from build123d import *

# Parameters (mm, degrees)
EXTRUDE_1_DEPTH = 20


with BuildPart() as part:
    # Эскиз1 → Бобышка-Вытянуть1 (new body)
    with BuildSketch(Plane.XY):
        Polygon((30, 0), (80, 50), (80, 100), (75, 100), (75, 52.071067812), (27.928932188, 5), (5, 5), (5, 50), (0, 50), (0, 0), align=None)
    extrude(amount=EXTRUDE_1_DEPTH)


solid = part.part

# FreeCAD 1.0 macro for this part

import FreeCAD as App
import Part
import Sketcher
Q = App.Units.Quantity

doc = App.newDocument("Part")
body = doc.addObject("PartDesign::Body", "Body")

sketch1 = body.newObject("Sketcher::SketchObject", "Sketch")
sketch1.AttachmentSupport = (doc.getObject("XY_Plane"), [""])
sketch1.MapMode = "FlatFace"
sketch1.addGeometry(Part.LineSegment(App.Vector(30, 0, 0), App.Vector(80, 50, 0)), False)
sketch1.addGeometry(Part.LineSegment(App.Vector(80, 50, 0), App.Vector(80, 100, 0)), False)
sketch1.addGeometry(Part.LineSegment(App.Vector(80, 100, 0), App.Vector(75, 100, 0)), False)
sketch1.addGeometry(Part.LineSegment(App.Vector(75, 100, 0), App.Vector(75, 52.071068, 0)), False)
sketch1.addGeometry(Part.LineSegment(App.Vector(75, 52.071068, 0), App.Vector(27.928932, 5, 0)), False)
sketch1.addGeometry(Part.LineSegment(App.Vector(27.928932, 5, 0), App.Vector(5, 5, 0)), False)
sketch1.addGeometry(Part.LineSegment(App.Vector(5, 5, 0), App.Vector(5, 50, 0)), False)
sketch1.addGeometry(Part.LineSegment(App.Vector(5, 50, 0), App.Vector(0, 50, 0)), False)
sketch1.addGeometry(Part.LineSegment(App.Vector(0, 50, 0), App.Vector(0, 0, 0)), False)
sketch1.addGeometry(Part.LineSegment(App.Vector(0, 0, 0), App.Vector(30, 0, 0)), False)
sketch1.addConstraint(Sketcher.Constraint("Coincident", 0, 2, 1, 1))
sketch1.addConstraint(Sketcher.Constraint("Coincident", 1, 2, 2, 1))
sketch1.addConstraint(Sketcher.Constraint("Coincident", 2, 2, 3, 1))
sketch1.addConstraint(Sketcher.Constraint("Coincident", 3, 2, 4, 1))
sketch1.addConstraint(Sketcher.Constraint("Coincident", 4, 2, 5, 1))
sketch1.addConstraint(Sketcher.Constraint("Coincident", 5, 2, 6, 1))
sketch1.addConstraint(Sketcher.Constraint("Coincident", 6, 2, 7, 1))
sketch1.addConstraint(Sketcher.Constraint("Coincident", 7, 2, 8, 1))
sketch1.addConstraint(Sketcher.Constraint("Coincident", 8, 2, 9, 1))
sketch1.addConstraint(Sketcher.Constraint("Coincident", 9, 2, 0, 1))
sketch1.addConstraint(Sketcher.Constraint("Vertical", 1))
sketch1.addConstraint(Sketcher.Constraint("Horizontal", 2))
sketch1.addConstraint(Sketcher.Constraint("Vertical", 3))
sketch1.addConstraint(Sketcher.Constraint("Horizontal", 5))
sketch1.addConstraint(Sketcher.Constraint("Vertical", 6))
sketch1.addConstraint(Sketcher.Constraint("Horizontal", 7))
sketch1.addConstraint(Sketcher.Constraint("Vertical", 8))
sketch1.addConstraint(Sketcher.Constraint("Horizontal", 9))
sketch1.addConstraint(Sketcher.Constraint("Coincident", 8, 2, -1, 1))
sketch1.addConstraint(Sketcher.Constraint("Parallel", 0, 4))
sketch1.addConstraint(Sketcher.Constraint("Horizontal", 0, 2, 6, 2))
sketch1.addConstraint(Sketcher.Constraint("Equal", 2, 7))
sketch1.addConstraint(Sketcher.Constraint("Equal", 1, 8))
sketch1.addConstraint(Sketcher.Constraint("DistanceX", 2, 2, 2, 1, Q("5 mm")))
sketch1.addConstraint(Sketcher.Constraint("DistanceX", 9, 1, 9, 2, Q("30 mm")))
sketch1.addConstraint(Sketcher.Constraint("DistanceY", 1, 1, 1, 2, Q("50 mm")))
sketch1.addConstraint(Sketcher.Constraint("DistanceY", 6, 1, 6, 2, Q("45 mm")))
sketch1.addConstraint(Sketcher.Constraint("Angle", 0, Q("45 deg")))
sketch1.addConstraint(Sketcher.Constraint("DistanceX", 5, 2, 5, 1, Q("22.928932 mm")))
pad1 = body.newObject("PartDesign::Pad", "Pad")
pad1.Profile = sketch1
pad1.Length = 20

doc.recompute()
